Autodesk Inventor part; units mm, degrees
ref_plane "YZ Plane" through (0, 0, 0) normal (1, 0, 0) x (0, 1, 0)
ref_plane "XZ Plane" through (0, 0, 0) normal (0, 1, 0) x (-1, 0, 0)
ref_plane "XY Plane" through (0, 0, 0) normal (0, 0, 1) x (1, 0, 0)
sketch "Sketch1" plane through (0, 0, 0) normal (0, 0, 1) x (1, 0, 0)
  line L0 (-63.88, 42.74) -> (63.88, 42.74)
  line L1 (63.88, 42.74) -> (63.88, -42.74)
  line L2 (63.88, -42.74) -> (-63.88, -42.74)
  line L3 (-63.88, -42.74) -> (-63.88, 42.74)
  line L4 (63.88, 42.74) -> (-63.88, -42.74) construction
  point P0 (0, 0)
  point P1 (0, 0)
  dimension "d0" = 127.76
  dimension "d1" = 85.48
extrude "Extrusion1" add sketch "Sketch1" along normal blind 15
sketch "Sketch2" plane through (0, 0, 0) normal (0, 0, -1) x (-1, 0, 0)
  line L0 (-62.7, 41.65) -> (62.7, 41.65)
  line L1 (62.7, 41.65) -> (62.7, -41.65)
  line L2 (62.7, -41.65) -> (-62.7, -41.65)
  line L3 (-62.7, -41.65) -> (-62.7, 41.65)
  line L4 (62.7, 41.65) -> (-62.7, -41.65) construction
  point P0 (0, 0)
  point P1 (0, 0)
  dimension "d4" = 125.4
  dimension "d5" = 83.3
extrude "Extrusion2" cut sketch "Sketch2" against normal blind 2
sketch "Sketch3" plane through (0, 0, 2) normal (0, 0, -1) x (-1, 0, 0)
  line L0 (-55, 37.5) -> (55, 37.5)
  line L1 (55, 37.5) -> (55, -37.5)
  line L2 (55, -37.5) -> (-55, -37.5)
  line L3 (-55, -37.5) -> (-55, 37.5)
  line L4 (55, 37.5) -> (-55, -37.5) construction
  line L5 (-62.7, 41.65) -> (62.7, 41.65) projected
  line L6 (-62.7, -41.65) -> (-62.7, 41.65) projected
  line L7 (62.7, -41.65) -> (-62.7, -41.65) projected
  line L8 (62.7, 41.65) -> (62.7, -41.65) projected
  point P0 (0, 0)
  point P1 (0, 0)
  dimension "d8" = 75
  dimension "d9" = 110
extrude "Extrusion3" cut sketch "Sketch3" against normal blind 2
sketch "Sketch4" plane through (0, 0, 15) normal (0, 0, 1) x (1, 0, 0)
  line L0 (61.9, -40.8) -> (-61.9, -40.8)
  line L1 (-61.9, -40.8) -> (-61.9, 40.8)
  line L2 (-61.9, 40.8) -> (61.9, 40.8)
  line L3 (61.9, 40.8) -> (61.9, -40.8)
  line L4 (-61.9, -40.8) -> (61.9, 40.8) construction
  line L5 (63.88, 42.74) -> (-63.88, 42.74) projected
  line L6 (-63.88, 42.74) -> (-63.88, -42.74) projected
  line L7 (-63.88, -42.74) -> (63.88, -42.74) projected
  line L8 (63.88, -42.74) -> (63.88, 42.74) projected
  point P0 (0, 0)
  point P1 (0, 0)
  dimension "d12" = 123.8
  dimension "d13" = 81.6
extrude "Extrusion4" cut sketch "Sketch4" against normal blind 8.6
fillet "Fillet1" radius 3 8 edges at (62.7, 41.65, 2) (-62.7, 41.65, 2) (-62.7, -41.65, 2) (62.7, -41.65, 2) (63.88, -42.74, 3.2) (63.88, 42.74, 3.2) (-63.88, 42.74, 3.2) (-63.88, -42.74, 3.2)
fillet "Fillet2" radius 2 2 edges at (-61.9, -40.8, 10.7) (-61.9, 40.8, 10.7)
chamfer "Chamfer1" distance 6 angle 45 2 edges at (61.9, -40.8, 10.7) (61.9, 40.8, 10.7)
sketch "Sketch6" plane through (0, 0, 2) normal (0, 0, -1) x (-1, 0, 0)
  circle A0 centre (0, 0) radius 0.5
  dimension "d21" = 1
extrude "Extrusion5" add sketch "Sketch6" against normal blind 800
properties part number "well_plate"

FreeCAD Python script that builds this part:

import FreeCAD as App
import Part
import Sketcher
from FreeCAD import Vector


def edges_at(feature, points):
    """Names of the edges that pass closest to the given points."""
    edges = feature.Shape.Edges
    near = lambda p: min(range(len(edges)), key=lambda i: edges[i].distToShape(Part.Vertex(*p))[0])
    return sorted({f"Edge{near(p) + 1}" for p in points})

doc = App.newDocument("Part")
body = doc.addObject("PartDesign::Body", "Body")

sketch1 = body.newObject("Sketcher::SketchObject", "Sketch")
sketch1.AttachmentSupport = (doc.getObject("XY_Plane"), [""])
sketch1.MapMode = "FlatFace"
sketch1.addGeometry(Part.LineSegment(Vector(63.88, 42.74, 0), Vector(-63.88, 42.74, 0)), False)
sketch1.addGeometry(Part.LineSegment(Vector(-63.88, 42.74, 0), Vector(-63.88, -42.74, 0)), False)
sketch1.addGeometry(Part.LineSegment(Vector(-63.88, -42.74, 0), Vector(63.88, -42.74, 0)), False)
sketch1.addGeometry(Part.LineSegment(Vector(63.88, -42.74, 0), Vector(63.88, 42.74, 0)), False)
sketch1.addConstraint(Sketcher.Constraint("Coincident", 0, 2, 1, 1))
sketch1.addConstraint(Sketcher.Constraint("Coincident", 1, 2, 2, 1))
sketch1.addConstraint(Sketcher.Constraint("Coincident", 2, 2, 3, 1))
sketch1.addConstraint(Sketcher.Constraint("Coincident", 3, 2, 0, 1))
sketch1.addConstraint(Sketcher.Constraint("Horizontal", 0))
sketch1.addConstraint(Sketcher.Constraint("Vertical", 1))
sketch1.addConstraint(Sketcher.Constraint("Horizontal", 2))
sketch1.addConstraint(Sketcher.Constraint("Vertical", 3))
sketch1.addConstraint(Sketcher.Constraint("Symmetric", 0, 2, 2, 2, -1, 1))
sketch1.addConstraint(Sketcher.Constraint("DistanceX", 0, 2, 0, 1, 127.76))
sketch1.addConstraint(Sketcher.Constraint("DistanceY", 1, 2, 1, 1, 85.48))
pad1 = body.newObject("PartDesign::Pad", "Pad")
pad1.Profile = sketch1
pad1.Length = 15

sketch2 = body.newObject("Sketcher::SketchObject", "Sketch001")
sketch2.AttachmentSupport = (doc.getObject("XY_Plane"), [""])
sketch2.MapMode = "FlatFace"
sketch2.addGeometry(Part.LineSegment(Vector(-62.7, 41.65, 0), Vector(62.7, 41.65, 0)), False)
sketch2.addGeometry(Part.LineSegment(Vector(62.7, 41.65, 0), Vector(62.7, -41.65, 0)), False)
sketch2.addGeometry(Part.LineSegment(Vector(62.7, -41.65, 0), Vector(-62.7, -41.65, 0)), False)
sketch2.addGeometry(Part.LineSegment(Vector(-62.7, -41.65, 0), Vector(-62.7, 41.65, 0)), False)
sketch2.addConstraint(Sketcher.Constraint("Coincident", 0, 2, 1, 1))
sketch2.addConstraint(Sketcher.Constraint("Coincident", 1, 2, 2, 1))
sketch2.addConstraint(Sketcher.Constraint("Coincident", 2, 2, 3, 1))
sketch2.addConstraint(Sketcher.Constraint("Coincident", 3, 2, 0, 1))
sketch2.addConstraint(Sketcher.Constraint("Horizontal", 0))
sketch2.addConstraint(Sketcher.Constraint("Vertical", 1))
sketch2.addConstraint(Sketcher.Constraint("Horizontal", 2))
sketch2.addConstraint(Sketcher.Constraint("Vertical", 3))
sketch2.addConstraint(Sketcher.Constraint("Symmetric", 0, 2, 2, 2, -1, 1))
sketch2.addConstraint(Sketcher.Constraint("DistanceX", 0, 1, 0, 2, 125.4))
sketch2.addConstraint(Sketcher.Constraint("DistanceY", 1, 2, 1, 1, 83.3))
pocket1 = body.newObject("PartDesign::Pocket", "Pocket")
pocket1.Profile = sketch2
pocket1.Length = 2
pocket1.Reversed = True

sketch3 = body.newObject("Sketcher::SketchObject", "Sketch002")
sketch3.AttachmentSupport = (doc.getObject("XY_Plane"), [""])
sketch3.MapMode = "FlatFace"
sketch3.AttachmentOffset = App.Placement(Vector(0, 0, 2), App.Rotation())
sketch3.addGeometry(Part.LineSegment(Vector(-62.7, 41.65, 0), Vector(62.7, 41.65, 0)), False)
sketch3.addGeometry(Part.LineSegment(Vector(62.7, 41.65, 0), Vector(62.7, -41.65, 0)), False)
sketch3.addGeometry(Part.LineSegment(Vector(62.7, -41.65, 0), Vector(-62.7, -41.65, 0)), False)
sketch3.addGeometry(Part.LineSegment(Vector(-62.7, -41.65, 0), Vector(-62.7, 41.65, 0)), False)
sketch3.addGeometry(Part.LineSegment(Vector(55, -37.5, 0), Vector(55, 37.5, 0)), False)
sketch3.addGeometry(Part.LineSegment(Vector(55, 37.5, 0), Vector(-55, 37.5, 0)), False)
sketch3.addGeometry(Part.LineSegment(Vector(-55, 37.5, 0), Vector(-55, -37.5, 0)), False)
sketch3.addGeometry(Part.LineSegment(Vector(-55, -37.5, 0), Vector(55, -37.5, 0)), False)
sketch3.addConstraint(Sketcher.Constraint("Coincident", 0, 2, 1, 1))
sketch3.addConstraint(Sketcher.Constraint("Coincident", 1, 2, 2, 1))
sketch3.addConstraint(Sketcher.Constraint("Coincident", 2, 2, 3, 1))
sketch3.addConstraint(Sketcher.Constraint("Coincident", 3, 2, 0, 1))
sketch3.addConstraint(Sketcher.Constraint("Coincident", 4, 2, 5, 1))
sketch3.addConstraint(Sketcher.Constraint("Coincident", 5, 2, 6, 1))
sketch3.addConstraint(Sketcher.Constraint("Coincident", 6, 2, 7, 1))
sketch3.addConstraint(Sketcher.Constraint("Coincident", 7, 2, 4, 1))
sketch3.addConstraint(Sketcher.Constraint("Horizontal", 0))
sketch3.addConstraint(Sketcher.Constraint("Vertical", 1))
sketch3.addConstraint(Sketcher.Constraint("Horizontal", 2))
sketch3.addConstraint(Sketcher.Constraint("Vertical", 3))
sketch3.addConstraint(Sketcher.Constraint("Vertical", 4))
sketch3.addConstraint(Sketcher.Constraint("Horizontal", 5))
sketch3.addConstraint(Sketcher.Constraint("Vertical", 6))
sketch3.addConstraint(Sketcher.Constraint("Horizontal", 7))
sketch3.addConstraint(Sketcher.Constraint("Symmetric", 0, 2, 2, 2, -1, 1))
sketch3.addConstraint(Sketcher.Constraint("Symmetric", 4, 2, 6, 2, -1, 1))
sketch3.addConstraint(Sketcher.Constraint("DistanceX", 5, 2, 5, 1, 110.0))
sketch3.addConstraint(Sketcher.Constraint("DistanceY", 4, 1, 4, 2, 75.0))
sketch3.addConstraint(Sketcher.Constraint("DistanceX", 0, 1, 0, 2, 125.4))
sketch3.addConstraint(Sketcher.Constraint("DistanceY", 1, 2, 1, 1, 83.3))
pocket2 = body.newObject("PartDesign::Pocket", "Pocket001")
pocket2.Profile = sketch3
pocket2.Length = 2
pocket2.Reversed = True

sketch4 = body.newObject("Sketcher::SketchObject", "Sketch003")
sketch4.AttachmentSupport = (doc.getObject("XY_Plane"), [""])
sketch4.MapMode = "FlatFace"
sketch4.AttachmentOffset = App.Placement(Vector(0, 0, 15), App.Rotation())
sketch4.addGeometry(Part.LineSegment(Vector(63.88, -42.74, 0), Vector(63.88, 42.74, 0)), False)
sketch4.addGeometry(Part.LineSegment(Vector(63.88, 42.74, 0), Vector(-63.88, 42.74, 0)), False)
sketch4.addGeometry(Part.LineSegment(Vector(-63.88, 42.74, 0), Vector(-63.88, -42.74, 0)), False)
sketch4.addGeometry(Part.LineSegment(Vector(-63.88, -42.74, 0), Vector(63.88, -42.74, 0)), False)
sketch4.addGeometry(Part.LineSegment(Vector(61.9, 40.8, 0), Vector(61.9, -40.8, 0)), False)
sketch4.addGeometry(Part.LineSegment(Vector(61.9, -40.8, 0), Vector(-61.9, -40.8, 0)), False)
sketch4.addGeometry(Part.LineSegment(Vector(-61.9, -40.8, 0), Vector(-61.9, 40.8, 0)), False)
sketch4.addGeometry(Part.LineSegment(Vector(-61.9, 40.8, 0), Vector(61.9, 40.8, 0)), False)
sketch4.addConstraint(Sketcher.Constraint("Coincident", 0, 2, 1, 1))
sketch4.addConstraint(Sketcher.Constraint("Coincident", 1, 2, 2, 1))
sketch4.addConstraint(Sketcher.Constraint("Coincident", 2, 2, 3, 1))
sketch4.addConstraint(Sketcher.Constraint("Coincident", 3, 2, 0, 1))
sketch4.addConstraint(Sketcher.Constraint("Coincident", 4, 2, 5, 1))
sketch4.addConstraint(Sketcher.Constraint("Coincident", 5, 2, 6, 1))
sketch4.addConstraint(Sketcher.Constraint("Coincident", 6, 2, 7, 1))
sketch4.addConstraint(Sketcher.Constraint("Coincident", 7, 2, 4, 1))
sketch4.addConstraint(Sketcher.Constraint("Vertical", 0))
sketch4.addConstraint(Sketcher.Constraint("Horizontal", 1))
sketch4.addConstraint(Sketcher.Constraint("Vertical", 2))
sketch4.addConstraint(Sketcher.Constraint("Horizontal", 3))
sketch4.addConstraint(Sketcher.Constraint("Vertical", 4))
sketch4.addConstraint(Sketcher.Constraint("Horizontal", 5))
sketch4.addConstraint(Sketcher.Constraint("Vertical", 6))
sketch4.addConstraint(Sketcher.Constraint("Horizontal", 7))
sketch4.addConstraint(Sketcher.Constraint("Symmetric", 0, 2, 2, 2, -1, 1))
sketch4.addConstraint(Sketcher.Constraint("Symmetric", 4, 2, 6, 2, -1, 1))
sketch4.addConstraint(Sketcher.Constraint("DistanceX", 5, 2, 5, 1, 123.8))
sketch4.addConstraint(Sketcher.Constraint("DistanceY", 4, 2, 4, 1, 81.6))
sketch4.addConstraint(Sketcher.Constraint("DistanceX", 1, 2, 1, 1, 127.76))
sketch4.addConstraint(Sketcher.Constraint("DistanceY", 0, 1, 0, 2, 85.48))
pocket3 = body.newObject("PartDesign::Pocket", "Pocket002")
pocket3.Profile = sketch4
pocket3.Length = 8.6
doc.recompute()

fillet = body.newObject("PartDesign::Fillet", "Fillet")
fillet.Base = (pocket3, edges_at(pocket3, [
    (62.7, 41.65, 2),
    (-62.7, 41.65, 2),
    (-62.7, -41.65, 2),
    (62.7, -41.65, 2),
    (63.88, -42.74, 3.2),
    (63.88, 42.74, 3.2),
    (-63.88, 42.74, 3.2),
    (-63.88, -42.74, 3.2),
]))
fillet.Radius = 3
doc.recompute()

fillet2 = body.newObject("PartDesign::Fillet", "Fillet001")
fillet2.Base = (fillet, edges_at(fillet, [(-61.9, -40.8, 10.7), (-61.9, 40.8, 10.7)]))
fillet2.Radius = 2
doc.recompute()

chamfer = body.newObject("PartDesign::Chamfer", "Chamfer")
chamfer.Base = (fillet2, edges_at(fillet2, [(61.9, -40.8, 10.7), (61.9, 40.8, 10.7)]))
chamfer.Size = 6

sketch5 = body.newObject("Sketcher::SketchObject", "Sketch004")
sketch5.AttachmentSupport = (doc.getObject("XY_Plane"), [""])
sketch5.MapMode = "FlatFace"
sketch5.AttachmentOffset = App.Placement(Vector(0, 0, 2), App.Rotation())
sketch5.addGeometry(Part.Circle(Vector(0, 0, 0), Vector(0, 0, 1), 0.5), False)
sketch5.addConstraint(Sketcher.Constraint("Coincident", 0, 3, -1, 1))
sketch5.addConstraint(Sketcher.Constraint("Diameter", 0, 1.0))
pad2 = body.newObject("PartDesign::Pad", "Pad001")
pad2.Profile = sketch5
pad2.Length = 800

doc.recompute()
